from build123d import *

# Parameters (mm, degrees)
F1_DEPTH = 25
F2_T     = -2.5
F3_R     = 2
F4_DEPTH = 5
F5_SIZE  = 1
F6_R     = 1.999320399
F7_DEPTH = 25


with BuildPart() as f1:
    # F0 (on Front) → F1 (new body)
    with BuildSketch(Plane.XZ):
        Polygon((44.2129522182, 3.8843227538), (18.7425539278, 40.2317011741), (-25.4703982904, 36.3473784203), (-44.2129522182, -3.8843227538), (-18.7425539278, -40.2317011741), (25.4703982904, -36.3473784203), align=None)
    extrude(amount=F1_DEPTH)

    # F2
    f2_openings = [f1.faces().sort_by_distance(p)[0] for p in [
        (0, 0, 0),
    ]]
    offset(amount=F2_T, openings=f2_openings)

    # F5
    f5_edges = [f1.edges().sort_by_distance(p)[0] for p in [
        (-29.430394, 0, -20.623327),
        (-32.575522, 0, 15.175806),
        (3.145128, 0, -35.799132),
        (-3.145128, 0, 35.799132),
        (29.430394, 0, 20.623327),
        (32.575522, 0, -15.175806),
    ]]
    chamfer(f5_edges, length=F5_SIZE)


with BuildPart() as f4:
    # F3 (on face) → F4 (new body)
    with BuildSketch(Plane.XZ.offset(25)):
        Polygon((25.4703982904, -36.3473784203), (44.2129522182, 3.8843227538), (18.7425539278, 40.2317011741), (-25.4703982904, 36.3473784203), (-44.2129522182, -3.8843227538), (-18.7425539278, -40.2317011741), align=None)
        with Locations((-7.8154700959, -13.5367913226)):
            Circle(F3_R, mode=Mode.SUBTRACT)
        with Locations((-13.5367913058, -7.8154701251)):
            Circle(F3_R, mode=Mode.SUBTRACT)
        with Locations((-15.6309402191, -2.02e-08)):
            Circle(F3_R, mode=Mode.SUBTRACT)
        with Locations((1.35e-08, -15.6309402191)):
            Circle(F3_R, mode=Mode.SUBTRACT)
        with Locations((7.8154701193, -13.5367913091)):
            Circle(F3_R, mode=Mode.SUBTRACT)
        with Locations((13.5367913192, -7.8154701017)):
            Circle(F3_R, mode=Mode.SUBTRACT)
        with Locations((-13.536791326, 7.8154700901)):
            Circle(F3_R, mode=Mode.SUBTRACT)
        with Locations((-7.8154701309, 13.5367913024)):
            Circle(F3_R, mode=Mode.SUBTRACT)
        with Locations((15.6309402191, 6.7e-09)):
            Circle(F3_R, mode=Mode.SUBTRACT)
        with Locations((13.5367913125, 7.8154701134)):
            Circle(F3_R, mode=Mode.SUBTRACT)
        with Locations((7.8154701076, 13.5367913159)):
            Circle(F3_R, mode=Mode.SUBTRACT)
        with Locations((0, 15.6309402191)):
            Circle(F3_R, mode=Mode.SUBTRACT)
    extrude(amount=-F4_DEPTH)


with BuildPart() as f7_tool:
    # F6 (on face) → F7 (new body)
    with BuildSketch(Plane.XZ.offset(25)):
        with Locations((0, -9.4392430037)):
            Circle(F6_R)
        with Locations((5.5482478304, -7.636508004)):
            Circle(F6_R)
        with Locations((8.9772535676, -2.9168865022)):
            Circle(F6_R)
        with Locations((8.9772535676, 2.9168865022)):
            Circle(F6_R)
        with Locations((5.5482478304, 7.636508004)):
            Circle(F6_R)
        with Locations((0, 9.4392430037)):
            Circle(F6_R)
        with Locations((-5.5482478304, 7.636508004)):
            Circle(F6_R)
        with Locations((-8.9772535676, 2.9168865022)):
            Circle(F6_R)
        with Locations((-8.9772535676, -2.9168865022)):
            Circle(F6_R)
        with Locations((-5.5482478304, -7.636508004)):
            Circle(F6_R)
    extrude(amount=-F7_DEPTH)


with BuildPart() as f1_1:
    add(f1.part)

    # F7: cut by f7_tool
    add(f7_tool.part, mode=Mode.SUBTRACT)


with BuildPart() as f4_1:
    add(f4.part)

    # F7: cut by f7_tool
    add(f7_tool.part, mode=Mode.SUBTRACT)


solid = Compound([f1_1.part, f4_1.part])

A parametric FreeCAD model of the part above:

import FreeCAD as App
import Part
import Sketcher
from FreeCAD import Vector


def edges_at(feature, points):
    """Names of the edges that pass closest to the given points."""
    edges = feature.Shape.Edges
    near = lambda p: min(range(len(edges)), key=lambda i: edges[i].distToShape(Part.Vertex(*p))[0])
    return sorted({f"Edge{near(p) + 1}" for p in points})


def faces_at(feature, points):
    """Names of the faces that lie closest to the given points."""
    faces = feature.Shape.Faces
    near = lambda p: min(range(len(faces)), key=lambda i: faces[i].distToShape(Part.Vertex(*p))[0])
    return sorted({f"Face{near(p) + 1}" for p in points})


def add_polygon(sketch, points):
    """Adds a closed chain of lines whose ends are joined by coincident constraints."""
    first, n = sketch.GeometryCount, len(points)
    for a, b in zip(points, points[1:] + points[:1]):
        sketch.addGeometry(Part.LineSegment(App.Vector(*a, 0), App.Vector(*b, 0)), False)
    for i in range(n):
        sketch.addConstraint(Sketcher.Constraint("Coincident", first + i, 2, first + (i + 1) % n, 1))

doc = App.newDocument("Part")
params = doc.addObject("Spreadsheet::Sheet", "Params")
for row, (alias, value) in enumerate([
    ("pad1_length", "25 mm"),
    ("thickness_wall", "2.5 mm"),
    ("chamfer_size", "1 mm"),
    ("sketch2_diameter", "4 mm"),
    ("pad2_length", "5 mm"),
    ("pad3_length", "25 mm"),
], start=1):
    params.set(f"A{row}", alias)
    params.set(f"B{row}", "=" + value)
    params.setAlias(f"B{row}", alias)

body = doc.addObject("PartDesign::Body", "Body")

sketch1 = doc.addObject("Sketcher::SketchObject", "Sketch")
body.addObject(sketch1)
sketch1.AttachmentSupport = (doc.XZ_Plane, [""])
sketch1.MapMode = "FlatFace"
add_polygon(sketch1, [(44, 4), (19, 40), (-25, 36), (-44, -4), (-19, -40), (25, -36)])
sketch1.addConstraint([
    Sketcher.Constraint("Symmetric", 0, 2, 3, 2, -1, 1),
    Sketcher.Constraint("Symmetric", 1, 2, 4, 2, -1, 1),
    Sketcher.Constraint("Symmetric", 2, 2, 5, 2, -1, 1),
    Sketcher.Constraint("Equal", 0, 1),
    Sketcher.Constraint("Equal", 1, 2),
    Sketcher.Constraint("DistanceY", -1, 1, 0, 2, 40.231701),
    Sketcher.Constraint("DistanceX", 1, 2, -1, 1, 25.470398),
    Sketcher.Constraint("DistanceY", 2, 2, 1, 2, 40.231701),
    Sketcher.Constraint("DistanceX", 2, 2, 3, 2, 25.470398),
])
pad1 = doc.addObject("PartDesign::Pad", "Pad")
body.addObject(pad1)
pad1.Profile = sketch1
pad1.setExpression("Length", "Params.pad1_length")
doc.recompute()

thickness = doc.addObject("PartDesign::Thickness", "Thickness")
body.addObject(thickness)
thickness.Base = (pad1, faces_at(pad1, [(0, 0, 0)]))
thickness.setExpression("Value", "Params.thickness_wall")
thickness.Reversed = True
thickness.Join = "Arc"
doc.recompute()

chamfer = doc.addObject("PartDesign::Chamfer", "Chamfer")
body.addObject(chamfer)
chamfer.Base = (thickness, edges_at(thickness, [
    (-29.43, 0, -20.623),
    (-32.576, 0, 15.176),
    (3.145, 0, -35.799),
    (-3.145, 0, 35.799),
    (29.43, 0, 20.623),
    (32.576, 0, -15.176),
]))
chamfer.setExpression("Size", "Params.chamfer_size")
body2 = doc.addObject("PartDesign::Body", "Body001")

sketch2 = doc.addObject("Sketcher::SketchObject", "Sketch001")
body2.addObject(sketch2)
sketch2.AttachmentSupport = (doc.getObject("XZ_Plane001"), [""])
sketch2.MapMode = "FlatFace"
sketch2.AttachmentOffset = App.Placement(Vector(0, 0, 25), App.Rotation())
add_polygon(sketch2, [(25.5, -36.3), (44.2, 3.9), (18.7, 40.2), (-25.5, 36.3), (-44.2, -3.9), (-18.7, -40.2)])
sketch2.addGeometry(Part.Circle(Vector(-7.8, -13.5, 0), Vector(0, 0, 1), 2), False)
sketch2.addGeometry(Part.Circle(Vector(-13.5, -7.8, 0), Vector(0, 0, 1), 2), False)
sketch2.addGeometry(Part.Circle(Vector(-15.6, 0, 0), Vector(0, 0, 1), 2), False)
sketch2.addGeometry(Part.Circle(Vector(0, -15.6, 0), Vector(0, 0, 1), 2), False)
sketch2.addGeometry(Part.Circle(Vector(7.8, -13.5, 0), Vector(0, 0, 1), 2), False)
sketch2.addGeometry(Part.Circle(Vector(13.5, -7.8, 0), Vector(0, 0, 1), 2), False)
sketch2.addGeometry(Part.Circle(Vector(-13.5, 7.8, 0), Vector(0, 0, 1), 2), False)
sketch2.addGeometry(Part.Circle(Vector(-7.8, 13.5, 0), Vector(0, 0, 1), 2), False)
sketch2.addGeometry(Part.Circle(Vector(15.6, 0, 0), Vector(0, 0, 1), 2), False)
sketch2.addGeometry(Part.Circle(Vector(13.5, 7.8, 0), Vector(0, 0, 1), 2), False)
sketch2.addGeometry(Part.Circle(Vector(0, 15.6, 0), Vector(0, 0, 1), 2), False)
sketch2.addGeometry(Part.Circle(Vector(7.8, 13.5, 0), Vector(0, 0, 1), 2), False)
sketch2.addConstraint([
    Sketcher.Constraint("Equal", 6, 7),
    Sketcher.Constraint("Equal", 7, 8),
    Sketcher.Constraint("Equal", 8, 9),
    Sketcher.Constraint("Equal", 9, 10),
    Sketcher.Constraint("Equal", 10, 11),
    Sketcher.Constraint("Equal", 11, 12),
    Sketcher.Constraint("Equal", 12, 13),
    Sketcher.Constraint("Equal", 13, 14),
    Sketcher.Constraint("Equal", 14, 15),
    Sketcher.Constraint("Equal", 15, 16),
    Sketcher.Constraint("Equal", 16, 17),
    Sketcher.Constraint("Symmetric", 11, 3, 12, 3, -1, 1),
    Sketcher.Constraint("Symmetric", 10, 3, 13, 3, -1, 1),
    Sketcher.Constraint("Symmetric", 8, 3, 14, 3, -1, 1),
    Sketcher.Constraint("Symmetric", 7, 3, 15, 3, -1, 1),
    Sketcher.Constraint("Symmetric", 9, 3, 16, 3, -1, 1),
    Sketcher.Constraint("Symmetric", 6, 3, 17, 3, -1, 1),
    Sketcher.Constraint("Symmetric", 0, 2, 3, 2, -1, 1),
    Sketcher.Constraint("Symmetric", 1, 2, 4, 2, -1, 1),
    Sketcher.Constraint("Symmetric", 2, 2, 5, 2, -1, 1),
    Sketcher.Constraint("Symmetric", 6, 3, 10, 3, -2),
    Sketcher.Constraint("Symmetric", 7, 3, 11, 3, -2),
    Sketcher.Constraint("PointOnObject", 8, 3, -1),
    Sketcher.Constraint("PointOnObject", 9, 3, -2),
    Sketcher.Constraint("Equal", 0, 1),
    Sketcher.Constraint("Equal", 1, 2),
    Sketcher.Constraint("Diameter", 6, 4.0),
    Sketcher.Constraint("DistanceY", -1, 1, 1, 2, 40.231701),
    Sketcher.Constraint("DistanceX", 2, 2, -1, 1, 25.470398),
    Sketcher.Constraint("DistanceX", 6, 3, -1, 1, 7.81547),
    Sketcher.Constraint("DistanceY", 6, 3, -1, 1, 13.536791),
    Sketcher.Constraint("DistanceX", 7, 3, -1, 1, 13.536791),
    Sketcher.Constraint("DistanceY", 7, 3, -1, 1, 7.81547),
    Sketcher.Constraint("DistanceX", 8, 3, -1, 1, 15.63094),
    Sketcher.Constraint("DistanceY", 9, 3, -1, 1, 15.63094),
    Sketcher.Constraint("DistanceY", -1, 1, 2, 2, 36.347378),
    Sketcher.Constraint("DistanceX", 14, 3, 0, 2, 28.582012),
])
sketch2.setExpression("Constraints[32]", "Params.sketch2_diameter")
pad2 = doc.addObject("PartDesign::Pad", "Pad001")
body2.addObject(pad2)
pad2.Profile = sketch2
pad2.setExpression("Length", "Params.pad2_length")
pad2.Reversed = True
body3 = doc.addObject("PartDesign::Body", "Body002")
body3.AllowCompound = True

sketch3 = doc.addObject("Sketcher::SketchObject", "Sketch002")
body3.addObject(sketch3)
sketch3.AttachmentSupport = (doc.getObject("XZ_Plane002"), [""])
sketch3.MapMode = "FlatFace"
sketch3.AttachmentOffset = App.Placement(Vector(0, 0, 25), App.Rotation())
sketch3.addGeometry([
    Part.Circle(Vector(0, -9.4, 0), Vector(0, 0, 1), 2),
    Part.Circle(Vector(5.5, -7.6, 0), Vector(0, 0, 1), 2),
    Part.Circle(Vector(9, -2.9, 0), Vector(0, 0, 1), 2),
    Part.Circle(Vector(9, 2.9, 0), Vector(0, 0, 1), 2),
    Part.Circle(Vector(5.5, 7.6, 0), Vector(0, 0, 1), 2),
    Part.Circle(Vector(0, 9.4, 0), Vector(0, 0, 1), 2),
    Part.Circle(Vector(-5.5, 7.6, 0), Vector(0, 0, 1), 2),
    Part.Circle(Vector(-9, 2.9, 0), Vector(0, 0, 1), 2),
    Part.Circle(Vector(-9, -2.9, 0), Vector(0, 0, 1), 2),
    Part.Circle(Vector(-5.5, -7.6, 0), Vector(0, 0, 1), 2),
], False)
sketch3.addConstraint([
    Sketcher.Constraint("Equal", 0, 1),
    Sketcher.Constraint("Equal", 1, 2),
    Sketcher.Constraint("Equal", 2, 3),
    Sketcher.Constraint("Equal", 3, 4),
    Sketcher.Constraint("Equal", 4, 5),
    Sketcher.Constraint("Equal", 5, 6),
    Sketcher.Constraint("Equal", 6, 7),
    Sketcher.Constraint("Equal", 7, 8),
    Sketcher.Constraint("Equal", 8, 9),
    Sketcher.Constraint("Symmetric", 0, 3, 5, 3, -1, 1),
    Sketcher.Constraint("Symmetric", 1, 3, 6, 3, -1, 1),
    Sketcher.Constraint("Symmetric", 2, 3, 7, 3, -1, 1),
    Sketcher.Constraint("Symmetric", 3, 3, 8, 3, -1, 1),
    Sketcher.Constraint("Symmetric", 4, 3, 9, 3, -1, 1),
    Sketcher.Constraint("Symmetric", 4, 3, 6, 3, -2),
    Sketcher.Constraint("Symmetric", 3, 3, 7, 3, -2),
    Sketcher.Constraint("PointOnObject", 0, 3, -2),
    Sketcher.Constraint("Diameter", 0, 3.998641),
    Sketcher.Constraint("DistanceX", 6, 3, 3, 3, 14.525501),
    Sketcher.Constraint("DistanceY", 1, 3, -1, 1, 7.636508),
    Sketcher.Constraint("DistanceY", 1, 3, 2, 3, 4.719622),
    Sketcher.Constraint("DistanceY", 0, 3, 3, 3, 12.35613),
    Sketcher.Constraint("DistanceX", -1, 1, 1, 3, 5.548248),
])
pad3 = doc.addObject("PartDesign::Pad", "Pad002")
body3.addObject(pad3)
pad3.Profile = sketch3
pad3.setExpression("Length", "Params.pad3_length")
pad3.Reversed = True
doc.recompute()

body4 = doc.addObject("PartDesign::Body", "Body003")
body4.BaseFeature = body3
boolean = doc.addObject("PartDesign::Boolean", "Boolean")
body.addObject(boolean)
boolean.Type = "Cut"
boolean.addObjects([body4])
doc.recompute()

boolean2 = doc.addObject("PartDesign::Boolean", "Boolean001")
body2.addObject(boolean2)
boolean2.Type = "Cut"
boolean2.addObjects([body3])

doc.recompute()
